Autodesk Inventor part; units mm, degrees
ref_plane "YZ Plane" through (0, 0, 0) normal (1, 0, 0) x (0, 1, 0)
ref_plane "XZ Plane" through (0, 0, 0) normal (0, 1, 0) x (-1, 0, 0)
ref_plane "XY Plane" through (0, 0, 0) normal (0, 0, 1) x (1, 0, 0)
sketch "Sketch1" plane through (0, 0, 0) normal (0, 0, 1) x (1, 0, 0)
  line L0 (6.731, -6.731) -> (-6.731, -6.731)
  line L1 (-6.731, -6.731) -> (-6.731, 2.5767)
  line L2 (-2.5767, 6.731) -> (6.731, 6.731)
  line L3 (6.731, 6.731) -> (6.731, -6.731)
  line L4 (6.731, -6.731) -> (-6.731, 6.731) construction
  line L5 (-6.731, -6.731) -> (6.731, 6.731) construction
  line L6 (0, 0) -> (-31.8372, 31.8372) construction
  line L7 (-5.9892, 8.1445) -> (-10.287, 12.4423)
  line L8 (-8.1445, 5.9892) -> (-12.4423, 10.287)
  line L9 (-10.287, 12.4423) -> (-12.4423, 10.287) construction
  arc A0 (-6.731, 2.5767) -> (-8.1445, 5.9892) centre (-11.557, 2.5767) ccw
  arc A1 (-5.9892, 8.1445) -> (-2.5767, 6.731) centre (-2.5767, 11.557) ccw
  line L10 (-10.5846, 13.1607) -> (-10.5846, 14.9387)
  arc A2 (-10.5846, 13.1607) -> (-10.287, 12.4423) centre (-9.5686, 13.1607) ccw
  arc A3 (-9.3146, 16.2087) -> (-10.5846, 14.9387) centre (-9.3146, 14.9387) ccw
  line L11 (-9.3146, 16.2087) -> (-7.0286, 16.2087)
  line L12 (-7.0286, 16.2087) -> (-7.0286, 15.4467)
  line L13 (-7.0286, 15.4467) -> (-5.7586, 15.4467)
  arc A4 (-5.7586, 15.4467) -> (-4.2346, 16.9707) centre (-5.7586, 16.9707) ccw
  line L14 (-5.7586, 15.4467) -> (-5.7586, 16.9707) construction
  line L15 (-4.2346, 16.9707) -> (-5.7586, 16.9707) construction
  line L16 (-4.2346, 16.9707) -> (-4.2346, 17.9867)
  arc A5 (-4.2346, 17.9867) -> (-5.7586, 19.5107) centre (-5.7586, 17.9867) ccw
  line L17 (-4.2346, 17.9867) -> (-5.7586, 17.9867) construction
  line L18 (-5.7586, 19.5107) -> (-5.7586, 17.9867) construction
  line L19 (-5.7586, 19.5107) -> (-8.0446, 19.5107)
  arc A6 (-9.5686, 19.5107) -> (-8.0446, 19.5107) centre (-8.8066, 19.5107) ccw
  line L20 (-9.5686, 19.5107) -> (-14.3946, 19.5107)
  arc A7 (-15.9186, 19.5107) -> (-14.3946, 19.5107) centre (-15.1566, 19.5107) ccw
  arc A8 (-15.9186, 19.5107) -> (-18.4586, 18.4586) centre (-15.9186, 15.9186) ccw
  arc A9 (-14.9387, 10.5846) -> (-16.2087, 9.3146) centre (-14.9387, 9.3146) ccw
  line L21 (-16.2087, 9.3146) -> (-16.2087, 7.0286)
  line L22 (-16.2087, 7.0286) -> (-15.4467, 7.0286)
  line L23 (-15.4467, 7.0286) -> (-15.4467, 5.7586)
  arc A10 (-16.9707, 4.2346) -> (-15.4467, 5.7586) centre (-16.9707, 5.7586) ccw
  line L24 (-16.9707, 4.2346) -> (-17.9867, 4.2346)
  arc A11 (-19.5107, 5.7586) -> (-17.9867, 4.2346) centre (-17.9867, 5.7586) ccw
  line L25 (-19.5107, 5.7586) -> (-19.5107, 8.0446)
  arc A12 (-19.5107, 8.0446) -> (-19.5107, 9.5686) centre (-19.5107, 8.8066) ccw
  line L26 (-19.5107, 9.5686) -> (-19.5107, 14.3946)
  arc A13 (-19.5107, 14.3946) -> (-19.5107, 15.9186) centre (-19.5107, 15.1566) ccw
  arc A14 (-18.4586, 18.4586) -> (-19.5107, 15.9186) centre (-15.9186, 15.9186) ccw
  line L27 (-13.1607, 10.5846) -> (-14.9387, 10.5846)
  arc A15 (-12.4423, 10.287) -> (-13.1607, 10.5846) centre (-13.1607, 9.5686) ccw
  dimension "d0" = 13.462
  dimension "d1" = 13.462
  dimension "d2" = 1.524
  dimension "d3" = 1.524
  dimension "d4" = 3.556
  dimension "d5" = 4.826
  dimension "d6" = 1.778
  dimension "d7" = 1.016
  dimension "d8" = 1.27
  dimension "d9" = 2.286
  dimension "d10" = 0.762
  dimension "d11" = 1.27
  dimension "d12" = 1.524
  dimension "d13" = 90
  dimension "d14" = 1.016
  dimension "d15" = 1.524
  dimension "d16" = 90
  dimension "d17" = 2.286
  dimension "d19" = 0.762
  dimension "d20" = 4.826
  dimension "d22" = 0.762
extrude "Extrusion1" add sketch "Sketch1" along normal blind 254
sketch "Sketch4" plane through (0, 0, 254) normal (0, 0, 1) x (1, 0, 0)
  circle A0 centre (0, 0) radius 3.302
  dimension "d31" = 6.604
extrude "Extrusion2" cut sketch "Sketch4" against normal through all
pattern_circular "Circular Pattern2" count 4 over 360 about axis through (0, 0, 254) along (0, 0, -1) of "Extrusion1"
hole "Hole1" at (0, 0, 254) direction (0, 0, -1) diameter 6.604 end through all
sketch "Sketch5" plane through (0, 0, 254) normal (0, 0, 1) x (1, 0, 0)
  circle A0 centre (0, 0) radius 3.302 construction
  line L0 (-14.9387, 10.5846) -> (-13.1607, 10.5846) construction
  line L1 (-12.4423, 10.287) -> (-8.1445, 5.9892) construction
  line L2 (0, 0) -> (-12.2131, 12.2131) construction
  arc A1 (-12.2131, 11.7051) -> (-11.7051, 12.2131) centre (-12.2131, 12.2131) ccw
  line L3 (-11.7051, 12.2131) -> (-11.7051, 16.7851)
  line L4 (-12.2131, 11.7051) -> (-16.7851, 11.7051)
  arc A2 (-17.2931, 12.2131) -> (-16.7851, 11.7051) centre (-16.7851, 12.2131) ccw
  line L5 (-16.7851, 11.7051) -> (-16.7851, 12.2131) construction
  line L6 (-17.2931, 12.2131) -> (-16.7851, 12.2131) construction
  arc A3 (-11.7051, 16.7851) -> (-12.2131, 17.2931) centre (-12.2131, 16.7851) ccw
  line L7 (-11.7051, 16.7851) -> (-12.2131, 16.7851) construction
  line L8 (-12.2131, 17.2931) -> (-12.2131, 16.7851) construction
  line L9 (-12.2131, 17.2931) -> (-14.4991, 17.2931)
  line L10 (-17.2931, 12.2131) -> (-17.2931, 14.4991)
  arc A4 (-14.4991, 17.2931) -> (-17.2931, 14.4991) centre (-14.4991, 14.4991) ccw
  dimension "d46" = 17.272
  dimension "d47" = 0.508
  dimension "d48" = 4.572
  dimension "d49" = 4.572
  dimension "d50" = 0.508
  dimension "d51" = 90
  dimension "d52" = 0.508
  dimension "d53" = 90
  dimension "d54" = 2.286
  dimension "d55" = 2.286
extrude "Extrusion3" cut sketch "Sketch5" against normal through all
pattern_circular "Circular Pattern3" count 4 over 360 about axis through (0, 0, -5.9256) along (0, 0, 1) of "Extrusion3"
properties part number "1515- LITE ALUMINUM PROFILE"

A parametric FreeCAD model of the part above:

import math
import FreeCAD as App
import Part
import Sketcher
Q = App.Units.Quantity

doc = App.newDocument("Part")
params = doc.addObject("Spreadsheet::Sheet", "Params")
for row, (alias, value) in enumerate([
    ("sketch1_radius", "0.19 in"),
    ("sketch1_radius2", "0.04 in"),
    ("sketch1_radius3", "0.05 in"),
    ("sketch1_radius4", "0.06 in"),
    ("sketch1_radius5", "0.03 in"),
    ("pad1_length", "10 in"),
    ("sketch2_diameter", "0.26 in"),
    ("sketch3_diameter", "0.26 in"),
    ("hole_diameter", "0.26 in"),
    ("sketch4_radius", "0.02 in"),
    ("sketch4_width", "0.18 in"),
    ("sketch4_width2", "0.09 in"),
], start=1):
    params.set(f"A{row}", alias)
    params.set(f"B{row}", "=" + value)
    params.setAlias(f"B{row}", alias)

body = doc.addObject("PartDesign::Body", "Body")

# Sketch on XY plane
sketch1 = body.newObject("Sketcher::SketchObject", "Sketch")
sketch1.AttachmentSupport = (doc.getObject("XY_Plane"), [""])
sketch1.MapMode = "FlatFace"
sketch1.addGeometry(Part.LineSegment(App.Vector(-6.731, -6.731, 0), App.Vector(6.731, -6.731, 0)), False)
sketch1.addGeometry(Part.LineSegment(App.Vector(6.731, -6.731, 0), App.Vector(6.731, 6.731, 0)), False)
sketch1.addGeometry(Part.LineSegment(App.Vector(6.731, 6.731, 0), App.Vector(-2.5767, 6.731, 0)), False)
sketch1.addGeometry(Part.ArcOfCircle(Part.Circle(App.Vector(-2.5767, 11.557, 0), App.Vector(0, 0, 1), 4.826004), math.radians(-135), math.radians(-90)), False)
sketch1.addGeometry(Part.LineSegment(App.Vector(-5.9892, 8.1445, 0), App.Vector(-10.287, 12.4423, 0)), False)
sketch1.addGeometry(Part.ArcOfCircle(Part.Circle(App.Vector(-9.5686, 13.1607, 0), App.Vector(0, 0, 1), 1.016), math.radians(180), math.radians(225)), False)
sketch1.addGeometry(Part.LineSegment(App.Vector(-10.5846, 13.1607, 0), App.Vector(-10.5846, 14.9387, 0)), False)
sketch1.addGeometry(Part.ArcOfCircle(Part.Circle(App.Vector(-9.3146, 14.9387, 0), App.Vector(0, 0, 1), 1.27), math.radians(90), math.radians(180)), False)
sketch1.addGeometry(Part.LineSegment(App.Vector(-9.3146, 16.2087, 0), App.Vector(-7.0286, 16.2087, 0)), False)
sketch1.addGeometry(Part.LineSegment(App.Vector(-7.0286, 16.2087, 0), App.Vector(-7.0286, 15.4467, 0)), False)
sketch1.addGeometry(Part.LineSegment(App.Vector(-7.0286, 15.4467, 0), App.Vector(-5.7586, 15.4467, 0)), False)
sketch1.addGeometry(Part.ArcOfCircle(Part.Circle(App.Vector(-5.7586, 16.9707, 0), App.Vector(0, 0, 1), 1.524), math.radians(-90), math.radians(0)), False)
sketch1.addGeometry(Part.LineSegment(App.Vector(-4.2346, 16.9707, 0), App.Vector(-4.2346, 17.9867, 0)), False)
sketch1.addGeometry(Part.ArcOfCircle(Part.Circle(App.Vector(-5.7586, 17.9867, 0), App.Vector(0, 0, 1), 1.524), math.radians(0), math.radians(90)), False)
sketch1.addGeometry(Part.LineSegment(App.Vector(-5.7586, 19.5107, 0), App.Vector(-8.0446, 19.5107, 0)), False)
sketch1.addGeometry(Part.ArcOfCircle(Part.Circle(App.Vector(-8.8066, 19.5107, 0), App.Vector(0, 0, 1), 0.762), math.radians(180), math.radians(360)), False)
sketch1.addGeometry(Part.LineSegment(App.Vector(-9.5686, 19.5107, 0), App.Vector(-14.3946, 19.5107, 0)), False)
sketch1.addGeometry(Part.ArcOfCircle(Part.Circle(App.Vector(-15.1566, 19.5107, 0), App.Vector(0, 0, 1), 0.762), math.radians(180), math.radians(360)), False)
sketch1.addGeometry(Part.ArcOfCircle(Part.Circle(App.Vector(-15.9186, 15.9186, 0), App.Vector(0, 0, 1), 3.592102), math.radians(90), math.radians(135)), False)
sketch1.addGeometry(Part.ArcOfCircle(Part.Circle(App.Vector(-15.9186, 15.9186, 0), App.Vector(0, 0, 1), 3.5921), math.radians(135), math.radians(180)), False)
sketch1.addGeometry(Part.ArcOfCircle(Part.Circle(App.Vector(-19.5107, 15.1566, 0), App.Vector(0, 0, 1), 0.762), math.radians(-90), math.radians(90)), False)
sketch1.addGeometry(Part.LineSegment(App.Vector(-19.5107, 14.3946, 0), App.Vector(-19.5107, 9.5686, 0)), False)
sketch1.addGeometry(Part.ArcOfCircle(Part.Circle(App.Vector(-19.5107, 8.8066, 0), App.Vector(0, 0, 1), 0.762), math.radians(-90), math.radians(90)), False)
sketch1.addGeometry(Part.LineSegment(App.Vector(-19.5107, 8.0446, 0), App.Vector(-19.5107, 5.7586, 0)), False)
sketch1.addGeometry(Part.ArcOfCircle(Part.Circle(App.Vector(-17.9867, 5.7586, 0), App.Vector(0, 0, 1), 1.524), math.radians(180), math.radians(270)), False)
sketch1.addGeometry(Part.LineSegment(App.Vector(-17.9867, 4.2346, 0), App.Vector(-16.9707, 4.2346, 0)), False)
sketch1.addGeometry(Part.ArcOfCircle(Part.Circle(App.Vector(-16.9707, 5.7586, 0), App.Vector(0, 0, 1), 1.524), math.radians(-90), math.radians(0)), False)
sketch1.addGeometry(Part.LineSegment(App.Vector(-15.4467, 5.7586, 0), App.Vector(-15.4467, 7.0286, 0)), False)
sketch1.addGeometry(Part.LineSegment(App.Vector(-15.4467, 7.0286, 0), App.Vector(-16.2087, 7.0286, 0)), False)
sketch1.addGeometry(Part.LineSegment(App.Vector(-16.2087, 7.0286, 0), App.Vector(-16.2087, 9.3146, 0)), False)
sketch1.addGeometry(Part.ArcOfCircle(Part.Circle(App.Vector(-14.9387, 9.3146, 0), App.Vector(0, 0, 1), 1.27), math.radians(90), math.radians(180)), False)
sketch1.addGeometry(Part.LineSegment(App.Vector(-14.9387, 10.5846, 0), App.Vector(-13.1607, 10.5846, 0)), False)
sketch1.addGeometry(Part.ArcOfCircle(Part.Circle(App.Vector(-13.1607, 9.5686, 0), App.Vector(0, 0, 1), 1.015971), math.radians(45), math.radians(90)), False)
sketch1.addGeometry(Part.LineSegment(App.Vector(-12.4423, 10.287, 0), App.Vector(-8.1445, 5.9892, 0)), False)
sketch1.addGeometry(Part.ArcOfCircle(Part.Circle(App.Vector(-11.557, 2.5767, 0), App.Vector(0, 0, 1), 4.826), math.radians(0), math.radians(45)), False)
sketch1.addGeometry(Part.LineSegment(App.Vector(-6.731, 2.5767, 0), App.Vector(-6.731, -6.731, 0)), False)
sketch1.addConstraint(Sketcher.Constraint("Coincident", 0, 2, 1, 1))
sketch1.addConstraint(Sketcher.Constraint("Coincident", 1, 2, 2, 1))
sketch1.addConstraint(Sketcher.Constraint("Tangent", 2, 2, 3, 2))
sketch1.addConstraint(Sketcher.Constraint("Tangent", 3, 1, 4, 1))
sketch1.addConstraint(Sketcher.Constraint("Tangent", 4, 2, 5, 2))
sketch1.addConstraint(Sketcher.Constraint("Tangent", 5, 1, 6, 1))
sketch1.addConstraint(Sketcher.Constraint("Tangent", 6, 2, 7, 2))
sketch1.addConstraint(Sketcher.Constraint("Tangent", 7, 1, 8, 1))
sketch1.addConstraint(Sketcher.Constraint("Coincident", 8, 2, 9, 1))
sketch1.addConstraint(Sketcher.Constraint("Coincident", 9, 2, 10, 1))
sketch1.addConstraint(Sketcher.Constraint("Tangent", 10, 2, 11, 1))
sketch1.addConstraint(Sketcher.Constraint("Tangent", 11, 2, 12, 1))
sketch1.addConstraint(Sketcher.Constraint("Tangent", 12, 2, 13, 1))
sketch1.addConstraint(Sketcher.Constraint("Tangent", 13, 2, 14, 1))
sketch1.addConstraint(Sketcher.Constraint("Coincident", 14, 2, 15, 2))
sketch1.addConstraint(Sketcher.Constraint("Coincident", 15, 1, 16, 1))
sketch1.addConstraint(Sketcher.Constraint("Coincident", 16, 2, 17, 2))
sketch1.addConstraint(Sketcher.Constraint("Coincident", 17, 1, 18, 1))
sketch1.addConstraint(Sketcher.Constraint("Tangent", 18, 2, 19, 1))
sketch1.addConstraint(Sketcher.Constraint("Coincident", 19, 2, 20, 2))
sketch1.addConstraint(Sketcher.Constraint("Coincident", 20, 1, 21, 1))
sketch1.addConstraint(Sketcher.Constraint("Coincident", 21, 2, 22, 2))
sketch1.addConstraint(Sketcher.Constraint("Coincident", 22, 1, 23, 1))
sketch1.addConstraint(Sketcher.Constraint("Tangent", 23, 2, 24, 1))
sketch1.addConstraint(Sketcher.Constraint("Tangent", 24, 2, 25, 1))
sketch1.addConstraint(Sketcher.Constraint("Tangent", 25, 2, 26, 1))
sketch1.addConstraint(Sketcher.Constraint("Tangent", 26, 2, 27, 1))
sketch1.addConstraint(Sketcher.Constraint("Coincident", 27, 2, 28, 1))
sketch1.addConstraint(Sketcher.Constraint("Coincident", 28, 2, 29, 1))
sketch1.addConstraint(Sketcher.Constraint("Tangent", 29, 2, 30, 2))
sketch1.addConstraint(Sketcher.Constraint("Tangent", 30, 1, 31, 1))
sketch1.addConstraint(Sketcher.Constraint("Tangent", 31, 2, 32, 2))
sketch1.addConstraint(Sketcher.Constraint("Tangent", 32, 1, 33, 1))
sketch1.addConstraint(Sketcher.Constraint("Tangent", 33, 2, 34, 2))
sketch1.addConstraint(Sketcher.Constraint("Tangent", 34, 1, 35, 1))
sketch1.addConstraint(Sketcher.Constraint("Coincident", 35, 2, 0, 1))
sketch1.addConstraint(Sketcher.Constraint("Horizontal", 0))
sketch1.addConstraint(Sketcher.Constraint("Vertical", 1))
sketch1.addConstraint(Sketcher.Constraint("Horizontal", 2))
sketch1.addConstraint(Sketcher.Constraint("Vertical", 6))
sketch1.addConstraint(Sketcher.Constraint("Horizontal", 8))
sketch1.addConstraint(Sketcher.Constraint("Vertical", 9))
sketch1.addConstraint(Sketcher.Constraint("Horizontal", 10))
sketch1.addConstraint(Sketcher.Constraint("Vertical", 12))
sketch1.addConstraint(Sketcher.Constraint("Horizontal", 14))
sketch1.addConstraint(Sketcher.Constraint("Horizontal", 16))
sketch1.addConstraint(Sketcher.Constraint("Vertical", 21))
sketch1.addConstraint(Sketcher.Constraint("Vertical", 23))
sketch1.addConstraint(Sketcher.Constraint("Horizontal", 25))
sketch1.addConstraint(Sketcher.Constraint("Vertical", 27))
sketch1.addConstraint(Sketcher.Constraint("Horizontal", 28))
sketch1.addConstraint(Sketcher.Constraint("Vertical", 29))
sketch1.addConstraint(Sketcher.Constraint("Horizontal", 31))
sketch1.addConstraint(Sketcher.Constraint("Vertical", 35))
sketch1.addConstraint(Sketcher.Constraint("Equal", 11, 13))
sketch1.addConstraint(Sketcher.Constraint("Equal", 15, 17))
sketch1.addConstraint(Sketcher.Constraint("Equal", 18, 19))
sketch1.addConstraint(Sketcher.Constraint("Equal", 17, 20))
sketch1.addConstraint(Sketcher.Constraint("Equal", 20, 22))
sketch1.addConstraint(Sketcher.Constraint("Equal", 13, 24))
sketch1.addConstraint(Sketcher.Constraint("Equal", 24, 26))
sketch1.addConstraint(Sketcher.Constraint("Equal", 7, 30))
sketch1.addConstraint(Sketcher.Constraint("Equal", 5, 32))
sketch1.addConstraint(Sketcher.Constraint("Equal", 3, 34))
sketch1.addConstraint(Sketcher.Constraint("Symmetric", 1, 2, 35, 2, -1, 1))
sketch1.addConstraint(Sketcher.Constraint("Parallel", 4, 33))
sketch1.addConstraint(Sketcher.Constraint("Horizontal", 15, 3, 17, 3))
sketch1.addConstraint(Sketcher.Constraint("Horizontal", 17, 3, 13, 2))
sketch1.addConstraint(Sketcher.Constraint("Horizontal", 14, 2, 15, 1))
sketch1.addConstraint(Sketcher.Constraint("Horizontal", 16, 2, 17, 1))
sketch1.addConstraint(Sketcher.Constraint("Horizontal", 18, 3, 19, 2))
sketch1.addConstraint(Sketcher.Constraint("Horizontal", 32, 3, 21, 2))
sketch1.addConstraint(Sketcher.Constraint("Vertical", 20, 3, 22, 3))
sketch1.addConstraint(Sketcher.Constraint("Vertical", 5, 3, 15, 1))
sketch1.addConstraint(Sketcher.Constraint("Vertical", 19, 3, 17, 1))
sketch1.addConstraint(Sketcher.Constraint("Vertical", 22, 3, 19, 2))
sketch1.addConstraint(Sketcher.Constraint("Vertical", 19, 2, 20, 1))
sketch1.addConstraint(Sketcher.Constraint("Vertical", 21, 2, 22, 1))
sketch1.addConstraint(Sketcher.Constraint("Equal", 8, 14))
sketch1.addConstraint(Sketcher.Constraint("Equal", 0, 1))
sketch1.addConstraint(Sketcher.Constraint("Equal", 31, 6))
sketch1.addConstraint(Sketcher.Constraint("Equal", 28, 9))
sketch1.addConstraint(Sketcher.Constraint("Equal", 25, 12))
sketch1.addConstraint(Sketcher.Constraint("Equal", 16, 21))
sketch1.addConstraint(Sketcher.Constraint("Equal", 14, 23))
sketch1.addConstraint(Sketcher.Constraint("Equal", 10, 27))
sketch1.addConstraint(Sketcher.Constraint("Equal", 2, 35))
sketch1.addConstraint(Sketcher.Constraint("Equal", 4, 33))
sketch1.addConstraint(Sketcher.Constraint("Radius", 3, Q("0.19 in")))
sketch1.addConstraint(Sketcher.Constraint("Radius", 5, Q("0.04 in")))
sketch1.addConstraint(Sketcher.Constraint("Radius", 7, Q("0.05 in")))
sketch1.addConstraint(Sketcher.Constraint("Radius", 11, Q("0.06 in")))
sketch1.addConstraint(Sketcher.Constraint("Radius", 15, Q("0.03 in")))
sketch1.addConstraint(Sketcher.Constraint("DistanceX", 0, 1, 0, 2, Q("0.53 in")))
sketch1.addConstraint(Sketcher.Constraint("DistanceX", 8, 1, 8, 2, Q("0.09 in")))
sketch1.addConstraint(Sketcher.Constraint("DistanceX", 16, 2, 16, 1, Q("0.19 in")))
sketch1.addConstraint(Sketcher.Constraint("DistanceX", 25, 1, 25, 2, Q("0.04 in")))
sketch1.addConstraint(Sketcher.Constraint("DistanceX", 28, 2, 28, 1, Q("0.03 in")))
sketch1.addConstraint(Sketcher.Constraint("DistanceX", 31, 1, 31, 2, Q("0.07 in")))
sketch1.addConstraint(Sketcher.Constraint("DistanceX", 18, 2, 17, 1, Q("0.1 in")))
sketch1.addConstraint(Sketcher.Constraint("DistanceY", 18, 3, 18, 2, Q("0.1 in")))
sketch1.addConstraint(Sketcher.Constraint("DistanceX", 4, 2, -1, 1, Q("0.405 in")))
sketch1.setExpression("Constraints[88]", "Params.sketch1_radius")
sketch1.setExpression("Constraints[89]", "Params.sketch1_radius2")
sketch1.setExpression("Constraints[90]", "Params.sketch1_radius3")
sketch1.setExpression("Constraints[91]", "Params.sketch1_radius4")
sketch1.setExpression("Constraints[92]", "Params.sketch1_radius5")
pad1 = body.newObject("PartDesign::Pad", "Pad")
pad1.Profile = sketch1
pad1.setExpression("Length", "Params.pad1_length")

# Sketch on XY plane
sketch2 = body.newObject("Sketcher::SketchObject", "Sketch001")
sketch2.AttachmentSupport = (doc.getObject("XY_Plane"), [""])
sketch2.MapMode = "FlatFace"
sketch2.AttachmentOffset = App.Placement(App.Vector(0, 0, 10 * 25.4), App.Rotation())
sketch2.addGeometry(Part.Circle(App.Vector(0, 0, 0), App.Vector(0, 0, 1), 3.302), False)
sketch2.addConstraint(Sketcher.Constraint("Coincident", 0, 3, -1, 1))
sketch2.addConstraint(Sketcher.Constraint("Diameter", 0, Q("0.26 in")))
sketch2.setExpression("Constraints[1]", "Params.sketch2_diameter")
pocket1 = body.newObject("PartDesign::Pocket", "Pocket")
pocket1.Profile = sketch2
pocket1.Type = "ThroughAll"
doc.recompute()

polarpattern = body.newObject("PartDesign::PolarPattern", "PolarPattern")
polarpattern.Originals = [pad1]
polarpattern.Axis = (doc.getObject("Z_Axis"), [""])
polarpattern.Angle = 360
polarpattern.Occurrences = 4
body.Tip = polarpattern

# Sketch on XY plane
sketch3 = body.newObject("Sketcher::SketchObject", "Sketch002")
sketch3.AttachmentSupport = (doc.getObject("XY_Plane"), [""])
sketch3.MapMode = "FlatFace"
sketch3.AttachmentOffset = App.Placement(App.Vector(0, 0, 10 * 25.4), App.Rotation())
sketch3.addGeometry(Part.Circle(App.Vector(0, 0, 0), App.Vector(0, 0, 1), 3.302), False)
sketch3.addConstraint(Sketcher.Constraint("Coincident", 0, 3, -1, 1))
sketch3.addConstraint(Sketcher.Constraint("Diameter", 0, Q("0.26 in")))
sketch3.setExpression("Constraints[1]", "Params.sketch3_diameter")
doc.recompute()
hole = body.newObject("PartDesign::Hole", "Hole")
hole.Profile = sketch3
hole.ThreadType = "None"
hole.setExpression("Diameter", "Params.hole_diameter")
hole.DepthType = "ThroughAll"

# Sketch on XY plane
sketch4 = body.newObject("Sketcher::SketchObject", "Sketch003")
sketch4.AttachmentSupport = (doc.getObject("XY_Plane"), [""])
sketch4.MapMode = "FlatFace"
sketch4.AttachmentOffset = App.Placement(App.Vector(0, 0, 10 * 25.4), App.Rotation())
sketch4.addGeometry(Part.LineSegment(App.Vector(-16.7851, 11.7051, 0), App.Vector(-12.2131, 11.7051, 0)), False)
sketch4.addGeometry(Part.ArcOfCircle(Part.Circle(App.Vector(-12.2131, 12.2131, 0), App.Vector(0, 0, 1), 0.508), math.radians(-90), math.radians(0)), False)
sketch4.addGeometry(Part.LineSegment(App.Vector(-11.7051, 12.2131, 0), App.Vector(-11.7051, 16.7851, 0)), False)
sketch4.addGeometry(Part.ArcOfCircle(Part.Circle(App.Vector(-12.2131, 16.7851, 0), App.Vector(0, 0, 1), 0.508), math.radians(0), math.radians(90)), False)
sketch4.addGeometry(Part.LineSegment(App.Vector(-12.2131, 17.2931, 0), App.Vector(-14.4991, 17.2931, 0)), False)
sketch4.addGeometry(Part.ArcOfCircle(Part.Circle(App.Vector(-14.4991, 14.4991, 0), App.Vector(0, 0, 1), 2.794), math.radians(90), math.radians(180)), False)
sketch4.addGeometry(Part.LineSegment(App.Vector(-17.2931, 14.4991, 0), App.Vector(-17.2931, 12.2131, 0)), False)
sketch4.addGeometry(Part.ArcOfCircle(Part.Circle(App.Vector(-16.7851, 12.2131, 0), App.Vector(0, 0, 1), 0.508), math.radians(180), math.radians(270)), False)
sketch4.addConstraint(Sketcher.Constraint("Tangent", 0, 2, 1, 1))
sketch4.addConstraint(Sketcher.Constraint("Tangent", 1, 2, 2, 1))
sketch4.addConstraint(Sketcher.Constraint("Tangent", 2, 2, 3, 1))
sketch4.addConstraint(Sketcher.Constraint("Tangent", 3, 2, 4, 1))
sketch4.addConstraint(Sketcher.Constraint("Tangent", 4, 2, 5, 1))
sketch4.addConstraint(Sketcher.Constraint("Tangent", 5, 2, 6, 1))
sketch4.addConstraint(Sketcher.Constraint("Tangent", 6, 2, 7, 1))
sketch4.addConstraint(Sketcher.Constraint("Tangent", 7, 2, 0, 1))
sketch4.addConstraint(Sketcher.Constraint("Horizontal", 0))
sketch4.addConstraint(Sketcher.Constraint("Vertical", 2))
sketch4.addConstraint(Sketcher.Constraint("Horizontal", 4))
sketch4.addConstraint(Sketcher.Constraint("Vertical", 6))
sketch4.addConstraint(Sketcher.Constraint("Equal", 1, 3))
sketch4.addConstraint(Sketcher.Constraint("Equal", 3, 7))
sketch4.addConstraint(Sketcher.Constraint("Equal", 0, 2))
sketch4.addConstraint(Sketcher.Constraint("Radius", 1, Q("0.02 in")))
sketch4.addConstraint(Sketcher.Constraint("DistanceX", 0, 1, 0, 2, Q("0.18 in")))
sketch4.addConstraint(Sketcher.Constraint("DistanceX", 4, 2, 4, 1, Q("0.09 in")))
sketch4.addConstraint(Sketcher.Constraint("DistanceX", 1, 3, -1, 1, 12.213))
sketch4.addConstraint(Sketcher.Constraint("DistanceY", -1, 1, 1, 3, 12.213))
sketch4.setExpression("Constraints[15]", "Params.sketch4_radius")
sketch4.setExpression("Constraints[16]", "Params.sketch4_width")
sketch4.setExpression("Constraints[17]", "Params.sketch4_width2")
pocket2 = body.newObject("PartDesign::Pocket", "Pocket001")
pocket2.Profile = sketch4
pocket2.Type = "ThroughAll"
doc.recompute()

polarpattern2 = body.newObject("PartDesign::PolarPattern", "PolarPattern001")
polarpattern2.Originals = [pocket2]
polarpattern2.Axis = (doc.getObject("Z_Axis"), [""])
polarpattern2.Angle = 360
polarpattern2.Occurrences = 4
body.Tip = polarpattern2

doc.recompute()
